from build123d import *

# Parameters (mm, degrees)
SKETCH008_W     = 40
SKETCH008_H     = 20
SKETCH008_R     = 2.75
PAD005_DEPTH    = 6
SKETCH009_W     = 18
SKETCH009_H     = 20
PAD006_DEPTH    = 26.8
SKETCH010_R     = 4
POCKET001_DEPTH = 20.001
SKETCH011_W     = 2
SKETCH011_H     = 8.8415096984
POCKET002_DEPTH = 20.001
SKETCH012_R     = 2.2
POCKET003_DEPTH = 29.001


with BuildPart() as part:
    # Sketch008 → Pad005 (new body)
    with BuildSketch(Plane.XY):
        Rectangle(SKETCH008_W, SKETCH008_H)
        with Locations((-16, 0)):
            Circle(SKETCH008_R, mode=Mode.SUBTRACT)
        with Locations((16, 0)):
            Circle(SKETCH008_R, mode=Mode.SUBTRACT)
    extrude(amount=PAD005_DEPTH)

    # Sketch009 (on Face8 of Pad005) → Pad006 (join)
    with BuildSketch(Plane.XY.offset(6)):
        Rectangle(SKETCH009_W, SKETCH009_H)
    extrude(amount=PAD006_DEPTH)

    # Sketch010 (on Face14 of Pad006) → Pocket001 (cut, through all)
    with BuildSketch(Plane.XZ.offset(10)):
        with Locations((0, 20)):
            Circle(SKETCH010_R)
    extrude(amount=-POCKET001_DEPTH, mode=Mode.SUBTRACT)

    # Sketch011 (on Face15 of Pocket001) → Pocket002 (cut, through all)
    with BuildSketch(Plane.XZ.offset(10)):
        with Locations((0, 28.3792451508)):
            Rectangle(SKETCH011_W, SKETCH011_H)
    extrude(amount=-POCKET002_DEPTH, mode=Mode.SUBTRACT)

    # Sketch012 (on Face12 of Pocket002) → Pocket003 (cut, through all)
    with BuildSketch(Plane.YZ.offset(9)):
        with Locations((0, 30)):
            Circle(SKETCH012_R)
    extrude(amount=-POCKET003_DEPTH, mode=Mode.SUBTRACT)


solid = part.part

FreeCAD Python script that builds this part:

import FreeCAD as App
import Part
import Sketcher

V = App.Vector
Q = App.Units.Quantity

doc = App.newDocument("Part")
body = doc.addObject("PartDesign::Body", "Body")

sketch1 = doc.addObject("Sketcher::SketchObject", "Sketch")
body.addObject(sketch1)
sketch1.AttachmentSupport = (doc.XY_Plane, [""])
sketch1.MapMode = "FlatFace"
sketch1.addGeometry([
    Part.LineSegment(V(-20, 10, 0), V(-20, -10, 0)),
    Part.LineSegment(V(-20, -10, 0), V(20, -10, 0)),
    Part.LineSegment(V(20, -10, 0), V(20, 10, 0)),
    Part.LineSegment(V(20, 10, 0), V(-20, 10, 0)),
    Part.Circle(V(-16, 0, 0), V(0, 0, 1), 2.8),
    Part.Circle(V(16, 0, 0), V(0, 0, 1), 2.8),
], False)
sketch1.addConstraint([
    Sketcher.Constraint("Coincident", 0, 2, 1, 1),
    Sketcher.Constraint("Coincident", 1, 2, 2, 1),
    Sketcher.Constraint("Coincident", 2, 2, 3, 1),
    Sketcher.Constraint("Coincident", 3, 2, 0, 1),
    Sketcher.Constraint("Vertical", 0),
    Sketcher.Constraint("Horizontal", 1),
    Sketcher.Constraint("Vertical", 2),
    Sketcher.Constraint("Horizontal", 3),
    Sketcher.Constraint("Equal", 4, 5),
    Sketcher.Constraint("Symmetric", 4, 3, 5, 3, -1, 1),
    Sketcher.Constraint("Symmetric", 0, 2, 2, 2, -1, 1),
    Sketcher.Constraint("PointOnObject", 4, 3, -1),
    Sketcher.Constraint("Diameter", 4, Q("5.5 mm")),
    Sketcher.Constraint("DistanceX", 1, 1, 1, 2, Q("40 mm")),
    Sketcher.Constraint("DistanceY", 0, 2, 0, 1, Q("20 mm")),
    Sketcher.Constraint("DistanceX", 4, 3, -1, 1, Q("16 mm")),
])
pad1 = doc.addObject("PartDesign::Pad", "Pad")
body.addObject(pad1)
pad1.Profile = sketch1
pad1.Length = 6

sketch2 = doc.addObject("Sketcher::SketchObject", "Sketch001")
body.addObject(sketch2)
sketch2.AttachmentSupport = (doc.XY_Plane, [""])
sketch2.MapMode = "FlatFace"
sketch2.AttachmentOffset = App.Placement(V(0, 0, 6), App.Rotation())
sketch2.addGeometry([
    Part.LineSegment(V(-9, 10, 0), V(-9, -10, 0)),
    Part.LineSegment(V(-9, -10, 0), V(9, -10, 0)),
    Part.LineSegment(V(9, -10, 0), V(9, 10, 0)),
    Part.LineSegment(V(9, 10, 0), V(-9, 10, 0)),
], False)
sketch2.addConstraint([
    Sketcher.Constraint("Coincident", 0, 2, 1, 1),
    Sketcher.Constraint("Coincident", 1, 2, 2, 1),
    Sketcher.Constraint("Coincident", 2, 2, 3, 1),
    Sketcher.Constraint("Coincident", 3, 2, 0, 1),
    Sketcher.Constraint("Vertical", 0),
    Sketcher.Constraint("Horizontal", 1),
    Sketcher.Constraint("Vertical", 2),
    Sketcher.Constraint("Horizontal", 3),
    Sketcher.Constraint("Symmetric", 0, 2, 2, 2, -1, 1),
    Sketcher.Constraint("DistanceX", 1, 1, 1, 2, Q("18 mm")),
    Sketcher.Constraint("DistanceY", 0, 2, 0, 1, Q("20 mm")),
])
pad2 = doc.addObject("PartDesign::Pad", "Pad001")
body.addObject(pad2)
pad2.Profile = sketch2
pad2.Length = 26.8

sketch3 = doc.addObject("Sketcher::SketchObject", "Sketch002")
body.addObject(sketch3)
sketch3.AttachmentSupport = (doc.XZ_Plane, [""])
sketch3.MapMode = "FlatFace"
sketch3.AttachmentOffset = App.Placement(V(0, 0, 10), App.Rotation())
sketch3.addGeometry(Part.Circle(V(0, 20, 0), V(0, 0, 1), 4), False)
sketch3.addConstraint([
    Sketcher.Constraint("PointOnObject", 0, 3, -2),
    Sketcher.Constraint("Diameter", 0, Q("8 mm")),
    Sketcher.Constraint("DistanceY", -1, 1, 0, 3, Q("20 mm")),
])
pocket1 = doc.addObject("PartDesign::Pocket", "Pocket")
body.addObject(pocket1)
pocket1.Profile = sketch3
pocket1.Type = "ThroughAll"

sketch4 = doc.addObject("Sketcher::SketchObject", "Sketch003")
body.addObject(sketch4)
sketch4.AttachmentSupport = (doc.XZ_Plane, [""])
sketch4.MapMode = "FlatFace"
sketch4.AttachmentOffset = App.Placement(V(0, 0, 10), App.Rotation())
sketch4.addGeometry([
    Part.LineSegment(V(-1, 32.8, 0), V(-1, 24, 0)),
    Part.LineSegment(V(-1, 24, 0), V(1, 24, 0)),
    Part.LineSegment(V(1, 24, 0), V(1, 32.8, 0)),
    Part.LineSegment(V(1, 32.8, 0), V(-1, 32.8, 0)),
], False)
sketch4.addConstraint([
    Sketcher.Constraint("Coincident", 0, 2, 1, 1),
    Sketcher.Constraint("Coincident", 1, 2, 2, 1),
    Sketcher.Constraint("Coincident", 2, 2, 3, 1),
    Sketcher.Constraint("Coincident", 3, 2, 0, 1),
    Sketcher.Constraint("Vertical", 0),
    Sketcher.Constraint("Horizontal", 1),
    Sketcher.Constraint("Vertical", 2),
    Sketcher.Constraint("Horizontal", 3),
    Sketcher.Constraint("DistanceX", 1, 1, 1, 2, Q("2 mm")),
    Sketcher.Constraint("DistanceX", 0, 2, -1, 1, Q("1 mm")),
    Sketcher.Constraint("DistanceY", -1, 1, 2, 2, Q("32.8 mm")),
    Sketcher.Constraint("DistanceY", 0, 2, 0, 1, Q("8.84151 mm")),
])
pocket2 = doc.addObject("PartDesign::Pocket", "Pocket001")
body.addObject(pocket2)
pocket2.Profile = sketch4
pocket2.Type = "ThroughAll"

sketch5 = doc.addObject("Sketcher::SketchObject", "Sketch004")
body.addObject(sketch5)
sketch5.AttachmentSupport = (doc.YZ_Plane, [""])
sketch5.MapMode = "FlatFace"
sketch5.AttachmentOffset = App.Placement(V(0, 0, 9), App.Rotation())
sketch5.addGeometry(Part.Circle(V(0, 30, 0), V(0, 0, 1), 2.2), False)
sketch5.addConstraint([
    Sketcher.Constraint("PointOnObject", 0, 3, -2),
    Sketcher.Constraint("Diameter", 0, Q("4.4 mm")),
    Sketcher.Constraint("DistanceY", -1, 1, 0, 3, Q("30 mm")),
])
pocket3 = doc.addObject("PartDesign::Pocket", "Pocket002")
body.addObject(pocket3)
pocket3.Profile = sketch5
pocket3.Type = "ThroughAll"

doc.recompute()
